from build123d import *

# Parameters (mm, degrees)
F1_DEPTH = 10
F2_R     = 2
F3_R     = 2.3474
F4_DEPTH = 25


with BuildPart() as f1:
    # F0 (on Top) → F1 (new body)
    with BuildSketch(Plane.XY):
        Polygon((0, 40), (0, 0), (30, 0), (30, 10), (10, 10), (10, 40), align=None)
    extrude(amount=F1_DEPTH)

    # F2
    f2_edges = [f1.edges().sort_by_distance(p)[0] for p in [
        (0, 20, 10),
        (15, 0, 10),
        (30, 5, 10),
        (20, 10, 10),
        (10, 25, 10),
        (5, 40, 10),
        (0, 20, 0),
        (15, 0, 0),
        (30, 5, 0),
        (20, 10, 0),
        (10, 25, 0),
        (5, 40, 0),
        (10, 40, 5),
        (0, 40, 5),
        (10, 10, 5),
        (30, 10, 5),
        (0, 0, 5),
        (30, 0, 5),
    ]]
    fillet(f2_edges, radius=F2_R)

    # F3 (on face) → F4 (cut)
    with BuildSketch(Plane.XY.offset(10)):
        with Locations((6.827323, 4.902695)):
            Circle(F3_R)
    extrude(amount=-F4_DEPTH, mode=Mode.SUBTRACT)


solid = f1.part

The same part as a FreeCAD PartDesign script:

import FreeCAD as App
import Part
import Sketcher
from FreeCAD import Vector
Q = App.Units.Quantity


def add_polygon(sketch, points):
    """Adds a closed chain of lines whose ends are joined by coincident constraints."""
    first, n = sketch.GeometryCount, len(points)
    for a, b in zip(points, points[1:] + points[:1]):
        sketch.addGeometry(Part.LineSegment(App.Vector(*a, 0), App.Vector(*b, 0)), False)
    for i in range(n):
        sketch.addConstraint(Sketcher.Constraint("Coincident", first + i, 2, first + (i + 1) % n, 1))

doc = App.newDocument("Part")
body = doc.addObject("PartDesign::Body", "Body")

sketch1 = body.newObject("Sketcher::SketchObject", "Sketch")
sketch1.AttachmentSupport = (doc.getObject("XY_Plane"), [""])
sketch1.MapMode = "FlatFace"
add_polygon(sketch1, [(0, 40), (0, 0), (30, 0), (30, 10), (10, 10), (10, 40)])
sketch1.addConstraint(Sketcher.Constraint("Vertical", 0))
sketch1.addConstraint(Sketcher.Constraint("Horizontal", 1))
sketch1.addConstraint(Sketcher.Constraint("Vertical", 2))
sketch1.addConstraint(Sketcher.Constraint("Horizontal", 3))
sketch1.addConstraint(Sketcher.Constraint("Vertical", 4))
sketch1.addConstraint(Sketcher.Constraint("Horizontal", 5))
sketch1.addConstraint(Sketcher.Constraint("Coincident", 0, 2, -1, 1))
sketch1.addConstraint(Sketcher.Constraint("Equal", 5, 2))
sketch1.addConstraint(Sketcher.Constraint("Equal", 1, 4))
sketch1.addConstraint(Sketcher.Constraint("DistanceX", 1, 1, 1, 2, Q("30 mm")))
sketch1.addConstraint(Sketcher.Constraint("DistanceX", 3, 2, 3, 1, Q("20 mm")))
pad1 = body.newObject("PartDesign::Pad", "Pad")
pad1.Profile = sketch1
pad1.Length = 10
doc.recompute()

fillet = body.newObject("PartDesign::Fillet", "Fillet")
fillet.Base = (pad1, ["Edge1"])
fillet.UseAllEdges = True
fillet.Radius = 2

sketch2 = body.newObject("Sketcher::SketchObject", "Sketch001")
sketch2.AttachmentSupport = (doc.getObject("XY_Plane"), [""])
sketch2.MapMode = "FlatFace"
sketch2.AttachmentOffset = App.Placement(Vector(0, 0, 10), App.Rotation())
sketch2.addGeometry(Part.Circle(Vector(6.8, 4.9, 0), Vector(0, 0, 1), 2.3), False)
sketch2.addConstraint(Sketcher.Constraint("Diameter", 0, Q("4.6948 mm")))
sketch2.addConstraint(Sketcher.Constraint("DistanceX", -1, 1, 0, 3, Q("6.827323 mm")))
sketch2.addConstraint(Sketcher.Constraint("DistanceY", -1, 1, 0, 3, Q("4.902695 mm")))
pocket1 = body.newObject("PartDesign::Pocket", "Pocket")
pocket1.Profile = sketch2
pocket1.Length = 25

doc.recompute()
